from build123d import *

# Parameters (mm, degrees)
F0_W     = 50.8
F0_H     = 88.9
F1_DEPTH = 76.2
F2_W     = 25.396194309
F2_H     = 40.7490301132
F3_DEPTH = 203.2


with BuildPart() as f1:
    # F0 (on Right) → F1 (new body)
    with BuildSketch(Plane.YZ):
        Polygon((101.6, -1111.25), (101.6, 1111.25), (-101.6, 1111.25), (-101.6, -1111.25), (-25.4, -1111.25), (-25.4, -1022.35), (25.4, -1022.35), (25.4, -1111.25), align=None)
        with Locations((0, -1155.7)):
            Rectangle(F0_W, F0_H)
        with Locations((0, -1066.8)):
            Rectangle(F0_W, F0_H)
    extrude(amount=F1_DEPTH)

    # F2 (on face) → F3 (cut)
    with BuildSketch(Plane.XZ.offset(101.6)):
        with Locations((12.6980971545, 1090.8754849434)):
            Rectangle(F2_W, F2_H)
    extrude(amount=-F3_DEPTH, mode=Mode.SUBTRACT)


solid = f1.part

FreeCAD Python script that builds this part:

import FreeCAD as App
import Part
import Sketcher

V = App.Vector
Q = App.Units.Quantity


def add_polygon(sketch, points):
    """Adds a closed chain of lines whose ends are joined by coincident constraints."""
    first, n = sketch.GeometryCount, len(points)
    for a, b in zip(points, points[1:] + points[:1]):
        sketch.addGeometry(Part.LineSegment(App.Vector(*a, 0), App.Vector(*b, 0)), False)
    for i in range(n):
        sketch.addConstraint(Sketcher.Constraint("Coincident", first + i, 2, first + (i + 1) % n, 1))

doc = App.newDocument("Part")
params = doc.addObject("Spreadsheet::Sheet", "Params")
for row, (alias, value) in enumerate([
    ("sketch1_width", "8 in"),
    ("sketch1_width2", "3 in"),
    ("sketch1_height", "87.5 in"),
    ("sketch1_height2", "3.5 in"),
    ("pad1_length", "3 in"),
    ("pocket1_length", "8 in"),
], start=1):
    params.set(f"A{row}", alias)
    params.set(f"B{row}", "=" + value)
    params.setAlias(f"B{row}", alias)

body = doc.addObject("PartDesign::Body", "Body")

sketch1 = body.newObject("Sketcher::SketchObject", "Sketch")
sketch1.AttachmentSupport = (doc.getObject("YZ_Plane"), [""])
sketch1.MapMode = "FlatFace"
add_polygon(sketch1, [(102, -1111), (102, 1111), (-102, 1111), (-102, -1111), (-25, -1111), (-25, -1200), (25, -1200), (25, -1111)])
sketch1.addConstraint(Sketcher.Constraint("Vertical", 0))
sketch1.addConstraint(Sketcher.Constraint("Horizontal", 1))
sketch1.addConstraint(Sketcher.Constraint("Vertical", 2))
sketch1.addConstraint(Sketcher.Constraint("Horizontal", 3))
sketch1.addConstraint(Sketcher.Constraint("Vertical", 4))
sketch1.addConstraint(Sketcher.Constraint("Horizontal", 5))
sketch1.addConstraint(Sketcher.Constraint("Vertical", 6))
sketch1.addConstraint(Sketcher.Constraint("Horizontal", 7))
sketch1.addConstraint(Sketcher.Constraint("Symmetric", 0, 2, 2, 2, -1, 1))
sketch1.addConstraint(Sketcher.Constraint("Symmetric", 3, 2, 6, 2, -2))
sketch1.addConstraint(Sketcher.Constraint("DistanceX", 1, 2, 1, 1, Q("8 in")))
sketch1.addConstraint(Sketcher.Constraint("DistanceX", 3, 1, 3, 2, Q("3 in")))
sketch1.addConstraint(Sketcher.Constraint("DistanceY", 0, 1, 0, 2, Q("87.5 in")))
sketch1.addConstraint(Sketcher.Constraint("DistanceY", 4, 2, 4, 1, Q("3.5 in")))
sketch1.setExpression("Constraints[18]", "Params.sketch1_width")
sketch1.setExpression("Constraints[19]", "Params.sketch1_width2")
sketch1.setExpression("Constraints[20]", "Params.sketch1_height")
sketch1.setExpression("Constraints[21]", "Params.sketch1_height2")
pad1 = body.newObject("PartDesign::Pad", "Pad")
pad1.Profile = sketch1
pad1.setExpression("Length", "Params.pad1_length")

sketch2 = body.newObject("Sketcher::SketchObject", "Sketch001")
sketch2.AttachmentSupport = (doc.getObject("XZ_Plane"), [""])
sketch2.MapMode = "FlatFace"
sketch2.AttachmentOffset = App.Placement(V(0, 0, 4 * 25.4), App.Rotation())
add_polygon(sketch2, [(0, 1111), (0, 1071), (25, 1071), (25, 1111)])
sketch2.addConstraint(Sketcher.Constraint("Vertical", 0))
sketch2.addConstraint(Sketcher.Constraint("Horizontal", 1))
sketch2.addConstraint(Sketcher.Constraint("Vertical", 2))
sketch2.addConstraint(Sketcher.Constraint("Horizontal", 3))
sketch2.addConstraint(Sketcher.Constraint("PointOnObject", 0, 2, -2))
sketch2.addConstraint(Sketcher.Constraint("DistanceY", -1, 1, 2, 2, Q("43.75 in")))
sketch2.addConstraint(Sketcher.Constraint("DistanceY", 0, 2, 0, 1, Q("40.74903 mm")))
sketch2.addConstraint(Sketcher.Constraint("DistanceX", 1, 1, 1, 2, Q("25.396194 mm")))
pocket1 = body.newObject("PartDesign::Pocket", "Pocket")
pocket1.Profile = sketch2
pocket1.setExpression("Length", "Params.pocket1_length")

doc.recompute()
